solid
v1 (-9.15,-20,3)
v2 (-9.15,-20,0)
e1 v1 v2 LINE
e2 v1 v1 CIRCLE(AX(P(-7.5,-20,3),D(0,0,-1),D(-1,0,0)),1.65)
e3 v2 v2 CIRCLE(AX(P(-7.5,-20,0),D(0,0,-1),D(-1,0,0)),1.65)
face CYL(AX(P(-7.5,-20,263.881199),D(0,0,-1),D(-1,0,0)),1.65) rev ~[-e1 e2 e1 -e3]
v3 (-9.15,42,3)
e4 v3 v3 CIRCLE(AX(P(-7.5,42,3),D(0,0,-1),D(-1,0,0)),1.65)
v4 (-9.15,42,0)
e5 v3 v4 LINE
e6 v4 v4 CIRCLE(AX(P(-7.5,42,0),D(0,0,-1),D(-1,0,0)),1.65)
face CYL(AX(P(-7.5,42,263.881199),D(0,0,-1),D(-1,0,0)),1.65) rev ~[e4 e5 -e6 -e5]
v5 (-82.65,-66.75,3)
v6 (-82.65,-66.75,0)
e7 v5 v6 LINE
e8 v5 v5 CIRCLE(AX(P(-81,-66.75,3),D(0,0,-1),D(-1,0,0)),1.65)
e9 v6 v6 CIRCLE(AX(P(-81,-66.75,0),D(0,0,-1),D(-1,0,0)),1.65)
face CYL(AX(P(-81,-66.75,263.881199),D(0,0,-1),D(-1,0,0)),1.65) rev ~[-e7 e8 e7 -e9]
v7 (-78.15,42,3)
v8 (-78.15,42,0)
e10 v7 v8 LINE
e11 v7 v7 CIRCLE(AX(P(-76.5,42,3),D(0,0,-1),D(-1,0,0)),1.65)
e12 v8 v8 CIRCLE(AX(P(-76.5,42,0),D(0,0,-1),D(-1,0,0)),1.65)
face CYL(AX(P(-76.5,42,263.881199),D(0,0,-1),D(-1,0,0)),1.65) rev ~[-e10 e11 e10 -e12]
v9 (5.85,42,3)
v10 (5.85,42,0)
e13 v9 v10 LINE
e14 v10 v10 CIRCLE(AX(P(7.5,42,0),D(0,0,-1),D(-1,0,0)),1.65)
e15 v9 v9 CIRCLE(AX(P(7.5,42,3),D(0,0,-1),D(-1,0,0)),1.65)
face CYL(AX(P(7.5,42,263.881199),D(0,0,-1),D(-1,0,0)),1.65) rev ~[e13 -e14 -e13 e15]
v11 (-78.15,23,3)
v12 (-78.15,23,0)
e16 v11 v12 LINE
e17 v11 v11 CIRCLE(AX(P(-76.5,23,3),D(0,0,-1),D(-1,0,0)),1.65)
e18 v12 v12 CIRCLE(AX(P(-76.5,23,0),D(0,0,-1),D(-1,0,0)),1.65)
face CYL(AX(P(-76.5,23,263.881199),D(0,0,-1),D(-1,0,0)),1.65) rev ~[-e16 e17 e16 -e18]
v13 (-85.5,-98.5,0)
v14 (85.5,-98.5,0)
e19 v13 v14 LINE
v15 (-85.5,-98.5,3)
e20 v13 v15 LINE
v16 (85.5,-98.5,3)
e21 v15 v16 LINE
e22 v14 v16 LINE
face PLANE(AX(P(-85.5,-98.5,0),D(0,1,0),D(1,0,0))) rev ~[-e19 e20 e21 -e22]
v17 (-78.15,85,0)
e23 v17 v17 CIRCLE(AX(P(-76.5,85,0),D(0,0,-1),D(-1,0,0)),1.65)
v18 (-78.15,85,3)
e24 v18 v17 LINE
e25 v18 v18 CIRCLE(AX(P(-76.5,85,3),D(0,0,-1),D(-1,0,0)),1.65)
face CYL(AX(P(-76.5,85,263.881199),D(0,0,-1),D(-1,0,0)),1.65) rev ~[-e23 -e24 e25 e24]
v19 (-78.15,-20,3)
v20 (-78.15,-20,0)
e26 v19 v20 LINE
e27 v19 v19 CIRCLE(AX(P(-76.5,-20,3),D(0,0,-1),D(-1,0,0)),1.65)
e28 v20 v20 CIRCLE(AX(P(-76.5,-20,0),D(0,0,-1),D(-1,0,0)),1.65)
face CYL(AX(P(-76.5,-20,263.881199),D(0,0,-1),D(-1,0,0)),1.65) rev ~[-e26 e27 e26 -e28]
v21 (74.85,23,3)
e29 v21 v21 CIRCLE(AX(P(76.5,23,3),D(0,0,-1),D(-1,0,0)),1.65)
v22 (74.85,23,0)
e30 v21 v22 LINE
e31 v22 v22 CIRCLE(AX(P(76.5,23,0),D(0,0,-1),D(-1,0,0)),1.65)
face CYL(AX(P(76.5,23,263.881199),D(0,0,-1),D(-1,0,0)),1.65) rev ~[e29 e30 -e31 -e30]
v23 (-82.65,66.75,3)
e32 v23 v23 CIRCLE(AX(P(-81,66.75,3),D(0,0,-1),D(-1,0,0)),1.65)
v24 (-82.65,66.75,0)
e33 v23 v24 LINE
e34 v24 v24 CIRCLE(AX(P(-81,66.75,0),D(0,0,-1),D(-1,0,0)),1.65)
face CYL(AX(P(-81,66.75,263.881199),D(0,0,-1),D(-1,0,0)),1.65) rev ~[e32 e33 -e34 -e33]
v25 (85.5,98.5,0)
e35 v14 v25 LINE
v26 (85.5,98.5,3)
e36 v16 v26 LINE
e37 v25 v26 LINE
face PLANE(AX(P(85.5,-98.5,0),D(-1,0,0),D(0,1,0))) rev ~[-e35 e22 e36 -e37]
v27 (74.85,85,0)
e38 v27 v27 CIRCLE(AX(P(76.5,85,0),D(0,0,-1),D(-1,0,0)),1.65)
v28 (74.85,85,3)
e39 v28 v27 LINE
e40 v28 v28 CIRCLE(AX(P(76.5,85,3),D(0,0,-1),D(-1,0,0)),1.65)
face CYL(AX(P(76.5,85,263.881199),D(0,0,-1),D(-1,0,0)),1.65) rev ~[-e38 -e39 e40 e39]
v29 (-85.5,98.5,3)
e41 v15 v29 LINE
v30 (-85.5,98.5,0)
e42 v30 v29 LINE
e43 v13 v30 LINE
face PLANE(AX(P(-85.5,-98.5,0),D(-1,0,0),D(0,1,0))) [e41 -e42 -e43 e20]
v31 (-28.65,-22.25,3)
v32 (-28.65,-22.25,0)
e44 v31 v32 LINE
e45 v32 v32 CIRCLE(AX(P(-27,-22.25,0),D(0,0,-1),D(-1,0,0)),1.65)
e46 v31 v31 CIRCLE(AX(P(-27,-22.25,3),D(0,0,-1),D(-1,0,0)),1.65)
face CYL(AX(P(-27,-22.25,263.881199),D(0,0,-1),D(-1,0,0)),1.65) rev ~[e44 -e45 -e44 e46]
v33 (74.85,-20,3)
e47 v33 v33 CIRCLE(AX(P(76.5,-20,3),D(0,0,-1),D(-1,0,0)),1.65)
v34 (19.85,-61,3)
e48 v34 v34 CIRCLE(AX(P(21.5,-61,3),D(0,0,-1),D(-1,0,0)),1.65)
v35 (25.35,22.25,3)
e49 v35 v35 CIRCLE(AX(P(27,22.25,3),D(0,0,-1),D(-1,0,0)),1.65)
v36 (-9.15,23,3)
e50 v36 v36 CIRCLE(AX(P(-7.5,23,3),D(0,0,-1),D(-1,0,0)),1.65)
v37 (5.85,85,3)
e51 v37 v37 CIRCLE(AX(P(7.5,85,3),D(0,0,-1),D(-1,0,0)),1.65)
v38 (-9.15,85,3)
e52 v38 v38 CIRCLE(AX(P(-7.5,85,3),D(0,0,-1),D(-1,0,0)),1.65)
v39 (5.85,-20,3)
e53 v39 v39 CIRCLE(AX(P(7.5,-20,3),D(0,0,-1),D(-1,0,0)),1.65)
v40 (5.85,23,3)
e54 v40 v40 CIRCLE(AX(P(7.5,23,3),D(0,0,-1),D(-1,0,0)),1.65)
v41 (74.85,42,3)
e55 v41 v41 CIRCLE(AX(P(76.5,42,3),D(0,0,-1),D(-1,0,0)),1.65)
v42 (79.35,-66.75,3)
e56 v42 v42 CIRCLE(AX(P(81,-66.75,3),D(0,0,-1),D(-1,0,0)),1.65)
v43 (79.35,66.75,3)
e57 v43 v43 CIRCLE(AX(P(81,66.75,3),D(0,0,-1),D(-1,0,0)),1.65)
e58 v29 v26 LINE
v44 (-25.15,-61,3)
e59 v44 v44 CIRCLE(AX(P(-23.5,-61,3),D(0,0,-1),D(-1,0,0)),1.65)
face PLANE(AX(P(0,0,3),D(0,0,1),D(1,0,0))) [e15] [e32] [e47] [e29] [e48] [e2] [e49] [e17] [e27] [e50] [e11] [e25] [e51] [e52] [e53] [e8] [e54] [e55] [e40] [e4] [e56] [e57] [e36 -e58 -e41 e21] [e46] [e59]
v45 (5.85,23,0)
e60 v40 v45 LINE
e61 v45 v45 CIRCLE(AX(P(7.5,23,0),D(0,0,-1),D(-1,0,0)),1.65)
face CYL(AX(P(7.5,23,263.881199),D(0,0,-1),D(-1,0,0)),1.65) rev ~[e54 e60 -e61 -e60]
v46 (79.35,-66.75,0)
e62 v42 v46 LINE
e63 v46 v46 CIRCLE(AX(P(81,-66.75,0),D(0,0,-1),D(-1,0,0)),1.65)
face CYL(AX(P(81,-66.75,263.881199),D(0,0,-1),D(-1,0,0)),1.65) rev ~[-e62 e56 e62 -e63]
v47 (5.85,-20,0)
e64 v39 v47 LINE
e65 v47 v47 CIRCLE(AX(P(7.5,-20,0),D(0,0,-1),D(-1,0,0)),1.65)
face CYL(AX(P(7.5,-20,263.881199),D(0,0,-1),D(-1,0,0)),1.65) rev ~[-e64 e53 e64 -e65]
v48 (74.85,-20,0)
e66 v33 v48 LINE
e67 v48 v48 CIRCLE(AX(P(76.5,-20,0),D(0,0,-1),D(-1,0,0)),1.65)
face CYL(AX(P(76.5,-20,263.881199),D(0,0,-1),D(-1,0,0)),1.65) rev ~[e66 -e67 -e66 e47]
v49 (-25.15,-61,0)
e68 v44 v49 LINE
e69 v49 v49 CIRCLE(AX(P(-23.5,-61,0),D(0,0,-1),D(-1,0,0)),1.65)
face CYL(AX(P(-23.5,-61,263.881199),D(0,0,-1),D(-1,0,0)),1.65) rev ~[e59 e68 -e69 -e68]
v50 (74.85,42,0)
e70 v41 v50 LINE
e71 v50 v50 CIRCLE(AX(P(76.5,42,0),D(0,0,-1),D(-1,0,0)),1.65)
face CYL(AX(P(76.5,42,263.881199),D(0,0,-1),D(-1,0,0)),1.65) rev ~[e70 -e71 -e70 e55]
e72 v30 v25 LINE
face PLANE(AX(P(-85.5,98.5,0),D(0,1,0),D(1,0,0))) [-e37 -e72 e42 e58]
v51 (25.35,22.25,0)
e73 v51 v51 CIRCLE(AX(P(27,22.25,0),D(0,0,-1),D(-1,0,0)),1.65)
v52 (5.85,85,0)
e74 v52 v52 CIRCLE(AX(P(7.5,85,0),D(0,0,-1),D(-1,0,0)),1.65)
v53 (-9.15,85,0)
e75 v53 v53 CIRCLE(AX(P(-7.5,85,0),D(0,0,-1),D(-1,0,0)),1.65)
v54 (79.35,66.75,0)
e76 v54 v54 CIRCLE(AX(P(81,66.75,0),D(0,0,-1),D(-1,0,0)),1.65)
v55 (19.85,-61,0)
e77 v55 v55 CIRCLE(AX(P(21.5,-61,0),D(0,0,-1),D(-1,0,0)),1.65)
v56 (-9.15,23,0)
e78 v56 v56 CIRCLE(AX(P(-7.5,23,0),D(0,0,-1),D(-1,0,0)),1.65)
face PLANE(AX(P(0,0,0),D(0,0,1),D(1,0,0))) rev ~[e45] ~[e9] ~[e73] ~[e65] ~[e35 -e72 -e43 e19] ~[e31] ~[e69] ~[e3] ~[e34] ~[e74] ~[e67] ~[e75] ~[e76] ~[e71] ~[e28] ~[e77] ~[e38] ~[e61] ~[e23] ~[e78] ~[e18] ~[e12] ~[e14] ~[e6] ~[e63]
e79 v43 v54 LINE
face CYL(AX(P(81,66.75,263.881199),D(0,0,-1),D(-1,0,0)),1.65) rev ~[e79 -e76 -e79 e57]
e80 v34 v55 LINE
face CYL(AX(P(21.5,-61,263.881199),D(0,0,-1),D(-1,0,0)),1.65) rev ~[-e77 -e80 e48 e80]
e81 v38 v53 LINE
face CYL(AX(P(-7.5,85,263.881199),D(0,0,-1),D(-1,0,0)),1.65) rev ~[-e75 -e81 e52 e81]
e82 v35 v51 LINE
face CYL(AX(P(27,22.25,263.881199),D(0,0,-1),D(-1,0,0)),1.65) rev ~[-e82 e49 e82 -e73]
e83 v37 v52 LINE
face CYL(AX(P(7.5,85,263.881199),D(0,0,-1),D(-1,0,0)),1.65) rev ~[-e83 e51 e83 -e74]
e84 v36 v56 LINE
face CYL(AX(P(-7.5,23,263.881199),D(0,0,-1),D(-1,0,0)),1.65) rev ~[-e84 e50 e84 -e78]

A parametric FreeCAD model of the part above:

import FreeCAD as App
import Part
import Sketcher

V = App.Vector

doc = App.newDocument("Part")
body = doc.addObject("PartDesign::Body", "Body")

# Sketch on XY plane
sketch1 = body.newObject("Sketcher::SketchObject", "Sketch")
sketch1.AttachmentSupport = (doc.getObject("XY_Plane"), [""])
sketch1.MapMode = "FlatFace"
sketch1.addGeometry([
    Part.LineSegment(V(-85.5, 98.5, 0), V(-85.5, -98.5, 0)),
    Part.LineSegment(V(-85.5, -98.5, 0), V(85.5, -98.5, 0)),
    Part.LineSegment(V(85.5, -98.5, 0), V(85.5, 98.5, 0)),
    Part.LineSegment(V(85.5, 98.5, 0), V(-85.5, 98.5, 0)),
], False)
sketch1.addConstraint([
    Sketcher.Constraint("Coincident", 0, 2, 1, 1),
    Sketcher.Constraint("Coincident", 1, 2, 2, 1),
    Sketcher.Constraint("Coincident", 2, 2, 3, 1),
    Sketcher.Constraint("Coincident", 3, 2, 0, 1),
    Sketcher.Constraint("Vertical", 0),
    Sketcher.Constraint("Horizontal", 1),
    Sketcher.Constraint("Vertical", 2),
    Sketcher.Constraint("Horizontal", 3),
    Sketcher.Constraint("Symmetric", 0, 2, 2, 2, -1, 1),
    Sketcher.Constraint("DistanceX", 1, 1, 1, 2, 171.0),
    Sketcher.Constraint("DistanceY", 0, 2, 0, 1, 197.0),
])
pad1 = body.newObject("PartDesign::Pad", "Pad")
pad1.Profile = sketch1
pad1.Length = 3

# Sketch on XY plane
sketch2 = body.newObject("Sketcher::SketchObject", "Sketch001")
sketch2.AttachmentSupport = (doc.getObject("XY_Plane"), [""])
sketch2.MapMode = "FlatFace"
sketch2.AttachmentOffset = App.Placement(V(0, 0, 3), App.Rotation())
sketch2.addGeometry([
    Part.Circle(V(-76.5, 85, 0), V(0, 0, 1), 1.65),  # 0
    Part.Circle(V(-7.5, 85, 0), V(0, 0, 1), 1.65),  # 1
    Part.Circle(V(-7.5, 42, 0), V(0, 0, 1), 1.65),  # 2
    Part.Circle(V(-76.5, 42, 0), V(0, 0, 1), 1.65),  # 3
    Part.Circle(V(-76.5, -20, 0), V(0, 0, 1), 1.65),  # 4
    Part.Circle(V(-76.5, 23, 0), V(0, 0, 1), 1.65),  # 5
    Part.Circle(V(-7.5, 23, 0), V(0, 0, 1), 1.65),  # 6
    Part.Circle(V(-7.5, -20, 0), V(0, 0, 1), 1.65),  # 7
    Part.Circle(V(7.5, -20, 0), V(0, 0, 1), 1.65),  # 8
    Part.Circle(V(7.5, 23, 0), V(0, 0, 1), 1.65),  # 9
    Part.Circle(V(76.5, 23, 0), V(0, 0, 1), 1.65),  # 10
    Part.Circle(V(76.5, -20, 0), V(0, 0, 1), 1.65),  # 11
    Part.Circle(V(7.5, 42, 0), V(0, 0, 1), 1.65),  # 12
    Part.Circle(V(76.5, 42, 0), V(0, 0, 1), 1.65),  # 13
    Part.Circle(V(76.5, 85, 0), V(0, 0, 1), 1.65),  # 14
    Part.Circle(V(7.5, 85, 0), V(0, 0, 1), 1.65),  # 15
    Part.Circle(V(21.5, -61, 0), V(0, 0, 1), 1.65),  # 16
    Part.Circle(V(-23.5, -61, 0), V(0, 0, 1), 1.65),  # 17
], False)
sketch2.addConstraint([
    Sketcher.Constraint("Equal", 0, 1),
    Sketcher.Constraint("Equal", 1, 2),
    Sketcher.Constraint("Equal", 2, 3),
    Sketcher.Constraint("Equal", 3, 4),
    Sketcher.Constraint("Equal", 4, 5),
    Sketcher.Constraint("Equal", 5, 6),
    Sketcher.Constraint("Equal", 6, 7),
    Sketcher.Constraint("Equal", 7, 8),
    Sketcher.Constraint("Equal", 8, 9),
    Sketcher.Constraint("Equal", 9, 10),
    Sketcher.Constraint("Equal", 10, 11),
    Sketcher.Constraint("Equal", 11, 12),
    Sketcher.Constraint("Equal", 12, 13),
    Sketcher.Constraint("Equal", 13, 14),
    Sketcher.Constraint("Equal", 14, 15),
    Sketcher.Constraint("Equal", 15, 16),
    Sketcher.Constraint("Equal", 16, 17),
    Sketcher.Constraint("Symmetric", 7, 3, 8, 3, -2),
    Sketcher.Constraint("Symmetric", 6, 3, 9, 3, -2),
    Sketcher.Constraint("Symmetric", 5, 3, 10, 3, -2),
    Sketcher.Constraint("Symmetric", 4, 3, 11, 3, -2),
    Sketcher.Constraint("Symmetric", 2, 3, 12, 3, -2),
    Sketcher.Constraint("Symmetric", 3, 3, 13, 3, -2),
    Sketcher.Constraint("Symmetric", 0, 3, 14, 3, -2),
    Sketcher.Constraint("Symmetric", 1, 3, 15, 3, -2),
    Sketcher.Constraint("Horizontal", 0, 3, 1, 3),
    Sketcher.Constraint("Horizontal", 2, 3, 3, 3),
    Sketcher.Constraint("Horizontal", 5, 3, 6, 3),
    Sketcher.Constraint("Horizontal", 4, 3, 7, 3),
    Sketcher.Constraint("Horizontal", 16, 3, 17, 3),
    Sketcher.Constraint("Vertical", 1, 3, 2, 3),
    Sketcher.Constraint("Vertical", 0, 3, 3, 3),
    Sketcher.Constraint("Vertical", 3, 3, 4, 3),
    Sketcher.Constraint("Vertical", 4, 3, 5, 3),
    Sketcher.Constraint("Vertical", 2, 3, 6, 3),
    Sketcher.Constraint("Vertical", 6, 3, 7, 3),
    Sketcher.Constraint("Diameter", 0, 3.3),
    Sketcher.Constraint("DistanceY", -1, 1, 0, 3, 85.0),
    Sketcher.Constraint("DistanceY", -1, 1, 2, 3, 42.0),
    Sketcher.Constraint("DistanceY", 4, 3, -1, 1, 20.0),
    Sketcher.Constraint("DistanceY", -1, 1, 5, 3, 23.0),
    Sketcher.Constraint("DistanceY", 16, 3, -1, 1, 61.0),
    Sketcher.Constraint("DistanceX", 0, 3, 1, 3, 69.0),
    Sketcher.Constraint("DistanceX", 7, 3, 8, 3, 15.0),
    Sketcher.Constraint("DistanceX", 8, 3, 16, 3, 14.0),
    Sketcher.Constraint("DistanceX", 17, 3, 7, 3, 16.0),
])
doc.recompute()
hole = body.newObject("PartDesign::Hole", "Hole")
hole.Profile = sketch2
hole.ThreadType = "None"
hole.Diameter = 3.3
hole.DepthType = "ThroughAll"

# Sketch on XY plane
sketch3 = body.newObject("Sketcher::SketchObject", "Sketch002")
sketch3.AttachmentSupport = (doc.getObject("XY_Plane"), [""])
sketch3.MapMode = "FlatFace"
sketch3.AttachmentOffset = App.Placement(V(0, 0, 3), App.Rotation())
sketch3.addGeometry([
    Part.Circle(V(-81, 66.75, 0), V(0, 0, 1), 1.65),  # 0
    Part.Circle(V(81, 66.75, 0), V(0, 0, 1), 1.65),  # 1
    Part.Circle(V(27, 22.25, 0), V(0, 0, 1), 1.65),  # 2
    Part.Circle(V(-27, -22.25, 0), V(0, 0, 1), 1.65),  # 3
    Part.Circle(V(-81, -66.75, 0), V(0, 0, 1), 1.65),  # 4
    Part.Circle(V(81, -66.75, 0), V(0, 0, 1), 1.65),  # 5
], False)
sketch3.addConstraint([
    Sketcher.Constraint("Equal", 0, 1),
    Sketcher.Constraint("Equal", 1, 2),
    Sketcher.Constraint("Equal", 2, 3),
    Sketcher.Constraint("Equal", 3, 4),
    Sketcher.Constraint("Equal", 4, 5),
    Sketcher.Constraint("Symmetric", 2, 3, 3, 3, -1, 1),
    Sketcher.Constraint("Symmetric", 1, 3, 4, 3, -1, 1),
    Sketcher.Constraint("Symmetric", 0, 3, 5, 3, -1, 1),
    Sketcher.Constraint("Symmetric", 0, 3, 1, 3, -2),
    Sketcher.Constraint("Diameter", 0, 3.3),
    Sketcher.Constraint("DistanceX", 0, 3, -1, 1, 81.0),
    Sketcher.Constraint("DistanceX", -1, 1, 2, 3, 27.0),
    Sketcher.Constraint("DistanceY", 3, 3, 0, 3, 89.0),
    Sketcher.Constraint("DistanceY", 2, 3, 1, 3, 44.5),
])
doc.recompute()
hole2 = body.newObject("PartDesign::Hole", "Hole001")
hole2.Profile = sketch3
hole2.ThreadType = "None"
hole2.Diameter = 3.3
hole2.DepthType = "ThroughAll"

doc.recompute()
